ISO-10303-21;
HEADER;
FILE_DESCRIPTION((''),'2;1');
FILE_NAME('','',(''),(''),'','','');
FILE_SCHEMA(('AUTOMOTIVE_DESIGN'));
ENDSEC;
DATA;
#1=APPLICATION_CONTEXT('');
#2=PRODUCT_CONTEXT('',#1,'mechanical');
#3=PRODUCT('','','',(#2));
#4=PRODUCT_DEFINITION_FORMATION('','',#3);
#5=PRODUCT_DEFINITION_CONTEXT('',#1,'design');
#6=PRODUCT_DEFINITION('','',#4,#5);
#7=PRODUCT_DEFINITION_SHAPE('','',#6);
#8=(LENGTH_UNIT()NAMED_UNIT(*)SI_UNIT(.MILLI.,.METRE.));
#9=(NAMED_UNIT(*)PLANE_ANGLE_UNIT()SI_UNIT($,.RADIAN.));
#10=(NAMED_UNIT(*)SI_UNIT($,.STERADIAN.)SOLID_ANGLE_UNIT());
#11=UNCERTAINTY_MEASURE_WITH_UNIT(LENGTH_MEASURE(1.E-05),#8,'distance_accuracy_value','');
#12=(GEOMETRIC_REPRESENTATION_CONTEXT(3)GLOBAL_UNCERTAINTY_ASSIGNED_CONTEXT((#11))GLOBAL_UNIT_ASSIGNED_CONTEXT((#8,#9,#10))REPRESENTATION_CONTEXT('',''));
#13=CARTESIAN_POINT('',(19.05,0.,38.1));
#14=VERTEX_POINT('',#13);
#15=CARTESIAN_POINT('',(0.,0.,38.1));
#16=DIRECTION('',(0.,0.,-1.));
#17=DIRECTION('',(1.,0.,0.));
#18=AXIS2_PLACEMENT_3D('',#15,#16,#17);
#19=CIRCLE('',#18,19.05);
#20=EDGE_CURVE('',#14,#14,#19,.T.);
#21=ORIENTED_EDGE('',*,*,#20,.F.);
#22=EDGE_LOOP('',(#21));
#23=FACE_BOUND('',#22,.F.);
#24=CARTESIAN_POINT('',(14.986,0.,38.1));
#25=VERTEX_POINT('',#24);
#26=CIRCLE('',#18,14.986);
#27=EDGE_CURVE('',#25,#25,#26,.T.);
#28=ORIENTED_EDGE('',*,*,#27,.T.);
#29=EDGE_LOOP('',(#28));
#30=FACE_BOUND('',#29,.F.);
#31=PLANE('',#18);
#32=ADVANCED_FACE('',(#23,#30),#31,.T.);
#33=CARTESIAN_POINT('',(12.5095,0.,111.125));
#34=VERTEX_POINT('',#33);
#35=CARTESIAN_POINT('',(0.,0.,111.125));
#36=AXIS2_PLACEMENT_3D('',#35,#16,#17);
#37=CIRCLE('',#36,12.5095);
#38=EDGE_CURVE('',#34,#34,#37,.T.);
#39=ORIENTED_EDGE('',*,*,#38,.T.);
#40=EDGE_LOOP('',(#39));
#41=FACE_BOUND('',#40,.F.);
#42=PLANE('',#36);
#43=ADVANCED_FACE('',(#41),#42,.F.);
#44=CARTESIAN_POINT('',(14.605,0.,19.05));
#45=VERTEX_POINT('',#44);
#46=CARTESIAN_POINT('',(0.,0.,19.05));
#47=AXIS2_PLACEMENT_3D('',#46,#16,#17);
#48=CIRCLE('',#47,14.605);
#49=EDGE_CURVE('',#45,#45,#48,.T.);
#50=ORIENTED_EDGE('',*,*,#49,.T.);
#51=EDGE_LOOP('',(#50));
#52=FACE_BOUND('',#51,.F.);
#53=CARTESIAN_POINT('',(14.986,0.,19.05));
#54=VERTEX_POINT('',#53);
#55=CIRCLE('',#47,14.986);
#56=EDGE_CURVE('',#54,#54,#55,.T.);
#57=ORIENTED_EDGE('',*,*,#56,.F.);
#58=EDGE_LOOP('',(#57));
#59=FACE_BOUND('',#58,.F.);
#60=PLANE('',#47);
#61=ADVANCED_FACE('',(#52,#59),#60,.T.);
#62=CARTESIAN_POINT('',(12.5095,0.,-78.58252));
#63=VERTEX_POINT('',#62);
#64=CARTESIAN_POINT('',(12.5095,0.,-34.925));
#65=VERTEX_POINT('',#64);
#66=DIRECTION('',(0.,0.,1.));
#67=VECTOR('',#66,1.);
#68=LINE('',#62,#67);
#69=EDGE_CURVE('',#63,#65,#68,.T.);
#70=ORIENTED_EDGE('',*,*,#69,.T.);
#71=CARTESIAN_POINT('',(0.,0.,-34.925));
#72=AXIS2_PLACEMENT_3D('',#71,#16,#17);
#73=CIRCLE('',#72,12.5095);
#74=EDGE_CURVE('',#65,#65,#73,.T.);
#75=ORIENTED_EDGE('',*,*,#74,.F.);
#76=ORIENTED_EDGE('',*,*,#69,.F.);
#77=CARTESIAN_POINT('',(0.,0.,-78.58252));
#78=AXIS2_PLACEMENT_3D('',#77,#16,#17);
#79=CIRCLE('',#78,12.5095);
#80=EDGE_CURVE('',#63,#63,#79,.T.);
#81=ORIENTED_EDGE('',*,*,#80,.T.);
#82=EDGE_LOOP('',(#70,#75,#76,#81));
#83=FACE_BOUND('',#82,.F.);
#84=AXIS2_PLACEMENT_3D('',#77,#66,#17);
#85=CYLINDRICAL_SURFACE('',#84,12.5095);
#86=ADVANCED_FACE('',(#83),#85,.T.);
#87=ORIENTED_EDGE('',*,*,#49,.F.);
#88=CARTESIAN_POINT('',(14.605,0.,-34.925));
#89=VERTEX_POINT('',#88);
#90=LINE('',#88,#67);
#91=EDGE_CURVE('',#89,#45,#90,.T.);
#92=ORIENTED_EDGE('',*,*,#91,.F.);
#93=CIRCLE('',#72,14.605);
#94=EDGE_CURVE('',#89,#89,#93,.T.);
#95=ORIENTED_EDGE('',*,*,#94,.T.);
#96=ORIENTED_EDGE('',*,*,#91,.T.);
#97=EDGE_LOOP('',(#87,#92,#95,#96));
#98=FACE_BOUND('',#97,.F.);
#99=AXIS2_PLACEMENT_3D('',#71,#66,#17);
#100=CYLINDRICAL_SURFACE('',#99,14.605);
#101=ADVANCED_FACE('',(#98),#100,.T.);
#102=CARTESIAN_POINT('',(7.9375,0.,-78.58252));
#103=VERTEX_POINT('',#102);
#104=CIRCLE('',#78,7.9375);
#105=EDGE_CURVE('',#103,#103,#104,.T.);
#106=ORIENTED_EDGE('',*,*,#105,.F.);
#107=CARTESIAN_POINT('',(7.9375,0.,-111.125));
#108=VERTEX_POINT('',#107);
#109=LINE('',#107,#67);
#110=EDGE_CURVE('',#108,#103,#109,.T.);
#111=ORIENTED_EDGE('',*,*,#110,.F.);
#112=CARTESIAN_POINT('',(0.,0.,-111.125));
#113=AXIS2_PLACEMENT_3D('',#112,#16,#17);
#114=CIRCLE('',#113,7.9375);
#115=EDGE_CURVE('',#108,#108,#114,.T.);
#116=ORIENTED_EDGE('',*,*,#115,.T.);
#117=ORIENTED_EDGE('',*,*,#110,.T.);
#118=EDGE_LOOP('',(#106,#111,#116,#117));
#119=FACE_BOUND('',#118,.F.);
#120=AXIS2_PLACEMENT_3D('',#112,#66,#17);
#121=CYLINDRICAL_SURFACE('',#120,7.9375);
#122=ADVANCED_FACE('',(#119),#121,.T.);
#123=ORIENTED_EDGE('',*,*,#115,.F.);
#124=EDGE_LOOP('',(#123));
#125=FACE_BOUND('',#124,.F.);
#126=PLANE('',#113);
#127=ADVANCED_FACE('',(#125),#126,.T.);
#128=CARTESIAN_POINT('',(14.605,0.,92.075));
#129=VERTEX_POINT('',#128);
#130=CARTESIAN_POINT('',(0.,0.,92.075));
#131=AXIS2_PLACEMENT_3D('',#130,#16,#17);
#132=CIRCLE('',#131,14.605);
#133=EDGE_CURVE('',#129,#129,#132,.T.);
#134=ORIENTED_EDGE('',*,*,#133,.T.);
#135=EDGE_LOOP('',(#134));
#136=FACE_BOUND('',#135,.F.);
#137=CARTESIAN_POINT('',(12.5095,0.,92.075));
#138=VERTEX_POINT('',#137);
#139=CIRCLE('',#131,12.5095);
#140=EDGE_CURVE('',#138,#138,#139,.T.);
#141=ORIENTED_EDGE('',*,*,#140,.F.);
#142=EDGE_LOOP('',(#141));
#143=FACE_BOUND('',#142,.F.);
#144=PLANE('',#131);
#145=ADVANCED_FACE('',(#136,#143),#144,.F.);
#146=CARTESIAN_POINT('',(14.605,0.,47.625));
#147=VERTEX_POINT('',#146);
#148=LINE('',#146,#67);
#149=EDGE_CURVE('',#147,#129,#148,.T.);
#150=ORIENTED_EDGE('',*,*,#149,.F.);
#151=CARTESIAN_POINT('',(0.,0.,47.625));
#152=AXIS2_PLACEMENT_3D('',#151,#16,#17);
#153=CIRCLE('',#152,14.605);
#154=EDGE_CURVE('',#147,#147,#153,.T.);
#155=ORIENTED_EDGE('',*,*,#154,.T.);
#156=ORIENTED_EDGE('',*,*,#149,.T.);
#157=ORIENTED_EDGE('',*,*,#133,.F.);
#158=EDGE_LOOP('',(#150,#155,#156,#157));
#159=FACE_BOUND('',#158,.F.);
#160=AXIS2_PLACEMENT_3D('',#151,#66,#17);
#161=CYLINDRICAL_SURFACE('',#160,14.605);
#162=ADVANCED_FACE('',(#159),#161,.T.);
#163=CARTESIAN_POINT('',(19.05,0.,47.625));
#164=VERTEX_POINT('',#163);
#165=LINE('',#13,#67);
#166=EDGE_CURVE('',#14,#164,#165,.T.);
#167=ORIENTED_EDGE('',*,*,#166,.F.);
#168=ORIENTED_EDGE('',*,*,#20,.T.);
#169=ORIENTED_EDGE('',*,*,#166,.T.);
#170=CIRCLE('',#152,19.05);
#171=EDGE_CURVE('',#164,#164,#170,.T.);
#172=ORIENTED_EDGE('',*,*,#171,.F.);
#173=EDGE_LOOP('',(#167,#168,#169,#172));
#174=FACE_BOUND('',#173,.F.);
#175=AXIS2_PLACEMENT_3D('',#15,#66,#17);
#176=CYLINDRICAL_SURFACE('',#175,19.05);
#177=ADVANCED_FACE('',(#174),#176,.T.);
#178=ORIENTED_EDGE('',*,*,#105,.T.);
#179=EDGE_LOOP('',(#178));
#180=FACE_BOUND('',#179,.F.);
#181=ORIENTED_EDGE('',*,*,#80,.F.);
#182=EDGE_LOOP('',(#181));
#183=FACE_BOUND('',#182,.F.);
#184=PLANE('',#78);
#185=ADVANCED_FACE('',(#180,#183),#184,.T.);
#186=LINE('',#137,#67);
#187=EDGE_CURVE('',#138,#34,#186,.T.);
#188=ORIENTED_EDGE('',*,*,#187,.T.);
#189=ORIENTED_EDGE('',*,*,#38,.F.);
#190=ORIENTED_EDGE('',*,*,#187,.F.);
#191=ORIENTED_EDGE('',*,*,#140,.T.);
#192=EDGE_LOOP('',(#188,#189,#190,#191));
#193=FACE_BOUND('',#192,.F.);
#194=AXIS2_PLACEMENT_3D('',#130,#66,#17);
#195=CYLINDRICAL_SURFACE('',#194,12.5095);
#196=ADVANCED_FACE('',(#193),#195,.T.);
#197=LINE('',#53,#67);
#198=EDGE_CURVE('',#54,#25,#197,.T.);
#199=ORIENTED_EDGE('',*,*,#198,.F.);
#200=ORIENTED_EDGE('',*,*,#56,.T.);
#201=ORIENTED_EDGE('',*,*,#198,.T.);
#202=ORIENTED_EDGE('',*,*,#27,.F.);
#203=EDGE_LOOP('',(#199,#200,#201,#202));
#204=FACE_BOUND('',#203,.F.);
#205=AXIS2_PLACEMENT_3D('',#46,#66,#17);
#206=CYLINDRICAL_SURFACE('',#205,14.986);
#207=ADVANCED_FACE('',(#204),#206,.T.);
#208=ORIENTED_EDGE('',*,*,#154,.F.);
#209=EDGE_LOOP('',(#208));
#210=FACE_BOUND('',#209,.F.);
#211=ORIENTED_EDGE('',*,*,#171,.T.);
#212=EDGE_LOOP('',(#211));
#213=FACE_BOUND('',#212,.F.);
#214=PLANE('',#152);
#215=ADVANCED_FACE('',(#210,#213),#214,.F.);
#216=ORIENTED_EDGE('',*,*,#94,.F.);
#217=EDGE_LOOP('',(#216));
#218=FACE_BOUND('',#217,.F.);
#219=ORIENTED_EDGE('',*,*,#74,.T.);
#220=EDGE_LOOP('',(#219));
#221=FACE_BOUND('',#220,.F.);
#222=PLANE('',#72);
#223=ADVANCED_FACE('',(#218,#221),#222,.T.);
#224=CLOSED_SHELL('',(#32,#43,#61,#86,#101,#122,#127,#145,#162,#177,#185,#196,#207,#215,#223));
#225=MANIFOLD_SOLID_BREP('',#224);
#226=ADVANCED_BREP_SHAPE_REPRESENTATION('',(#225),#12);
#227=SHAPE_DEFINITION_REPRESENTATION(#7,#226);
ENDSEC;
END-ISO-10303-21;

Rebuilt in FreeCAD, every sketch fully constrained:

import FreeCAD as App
import Part
import Sketcher

V = App.Vector
Q = App.Units.Quantity


def add_polygon(sketch, points):
    """Adds a closed chain of lines whose ends are joined by coincident constraints."""
    first, n = sketch.GeometryCount, len(points)
    for a, b in zip(points, points[1:] + points[:1]):
        sketch.addGeometry(Part.LineSegment(App.Vector(*a, 0), App.Vector(*b, 0)), False)
    for i in range(n):
        sketch.addConstraint(Sketcher.Constraint("Coincident", first + i, 2, first + (i + 1) % n, 1))

doc = App.newDocument("Part")
body = doc.addObject("PartDesign::Body", "Body")

# Sketch on XZ plane
sketch1 = doc.addObject("Sketcher::SketchObject", "Sketch")
body.addObject(sketch1)
sketch1.AttachmentSupport = (doc.XZ_Plane, [""])
sketch1.MapMode = "FlatFace"
add_polygon(sketch1, [(12.51, 111.12), (0, 111.12), (0, -111.12), (7.94, -111.12), (7.94, -78.58), (12.51, -78.58), (12.51, -34.92), (14.61, -34.92), (14.61, 19.05), (14.99, 19.05), (14.99, 38.1), (19.05, 38.1), (19.05, 47.62), (14.61, 47.62), (14.61, 92.08), (12.51, 92.08)])  # lines 0-15
sketch1.addConstraint([
    Sketcher.Constraint("Horizontal", 0),
    Sketcher.Constraint("Vertical", 1),
    Sketcher.Constraint("Horizontal", 2),
    Sketcher.Constraint("Vertical", 3),
    Sketcher.Constraint("Horizontal", 4),
    Sketcher.Constraint("Vertical", 5),
    Sketcher.Constraint("Horizontal", 6),
    Sketcher.Constraint("Vertical", 7),
    Sketcher.Constraint("Horizontal", 8),
    Sketcher.Constraint("Vertical", 9),
    Sketcher.Constraint("Horizontal", 10),
    Sketcher.Constraint("Vertical", 11),
    Sketcher.Constraint("Horizontal", 12),
    Sketcher.Constraint("Vertical", 13),
    Sketcher.Constraint("Horizontal", 14),
    Sketcher.Constraint("Vertical", 15),
    Sketcher.Constraint("Symmetric", 0, 2, 1, 2, -1, 1),
    Sketcher.Constraint("Vertical", 7, 2, 12, 2),
    Sketcher.Constraint("Vertical", 5, 2, 14, 2),
    Sketcher.Constraint("Equal", 9, 15),
    Sketcher.Constraint("DistanceY", 2, 2, 5, 2, Q("3 in")),
    Sketcher.Constraint("DistanceX", 4, 1, 4, 2, Q("0.18 in")),
    Sketcher.Constraint("DistanceX", 10, 1, 10, 2, Q("0.16 in")),
    Sketcher.Constraint("DistanceY", 1, 2, 1, 1, Q("8.75 in")),
    Sketcher.Constraint("DistanceY", 9, 1, 9, 2, Q("0.75 in")),
    Sketcher.Constraint("DistanceY", 13, 1, 13, 2, Q("1.75 in")),
    Sketcher.Constraint("DistanceY", -1, 1, 9, 2, Q("1.5 in")),
    Sketcher.Constraint("DistanceX", 2, 1, 2, 2, Q("0.3125 in")),
    Sketcher.Constraint("DistanceX", 8, 1, 8, 2, Q("0.015 in")),
    Sketcher.Constraint("DistanceX", -1, 1, 8, 2, Q("0.59 in")),
    Sketcher.Constraint("DistanceY", 3, 1, 3, 2, Q("1.2812 in")),
])
revolution = doc.addObject("PartDesign::Revolution", "Revolution")
body.addObject(revolution)
revolution.Profile = sketch1
revolution.ReferenceAxis = (sketch1, ["V_Axis"])
revolution.Angle = 360

doc.recompute()
